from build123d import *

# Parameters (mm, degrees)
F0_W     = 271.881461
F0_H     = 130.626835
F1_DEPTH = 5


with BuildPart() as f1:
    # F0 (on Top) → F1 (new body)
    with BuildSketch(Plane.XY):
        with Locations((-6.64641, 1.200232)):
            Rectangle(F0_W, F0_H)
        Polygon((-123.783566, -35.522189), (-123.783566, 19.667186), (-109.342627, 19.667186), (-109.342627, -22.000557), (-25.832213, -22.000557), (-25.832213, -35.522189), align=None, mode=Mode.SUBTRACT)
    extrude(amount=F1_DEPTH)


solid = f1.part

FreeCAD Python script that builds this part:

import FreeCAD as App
import Part
import Sketcher
from FreeCAD import Vector


def add_polygon(sketch, points):
    """Adds a closed chain of lines whose ends are joined by coincident constraints."""
    first, n = sketch.GeometryCount, len(points)
    for a, b in zip(points, points[1:] + points[:1]):
        sketch.addGeometry(Part.LineSegment(App.Vector(*a, 0), App.Vector(*b, 0)), False)
    for i in range(n):
        sketch.addConstraint(Sketcher.Constraint("Coincident", first + i, 2, first + (i + 1) % n, 1))

doc = App.newDocument("Part")
body = doc.addObject("PartDesign::Body", "Body")

sketch1 = body.newObject("Sketcher::SketchObject", "Sketch")
sketch1.AttachmentSupport = (doc.getObject("XY_Plane"), [""])
sketch1.MapMode = "FlatFace"
add_polygon(sketch1, [(-142.587141, 66.513649), (-142.587141, -64.113186), (129.29432, -64.113186), (129.29432, 66.513649)])
add_polygon(sketch1, [(-25.832213, -35.522189), (-123.783566, -35.522189), (-123.783566, 19.667186), (-109.342627, 19.667186), (-109.342627, -22.000557), (-25.832213, -22.000557)])
sketch1.addConstraint(Sketcher.Constraint("Vertical", 0))
sketch1.addConstraint(Sketcher.Constraint("Horizontal", 1))
sketch1.addConstraint(Sketcher.Constraint("Vertical", 2))
sketch1.addConstraint(Sketcher.Constraint("Horizontal", 3))
sketch1.addConstraint(Sketcher.Constraint("Horizontal", 4))
sketch1.addConstraint(Sketcher.Constraint("Vertical", 5))
sketch1.addConstraint(Sketcher.Constraint("Horizontal", 6))
sketch1.addConstraint(Sketcher.Constraint("Vertical", 7))
sketch1.addConstraint(Sketcher.Constraint("Horizontal", 8))
sketch1.addConstraint(Sketcher.Constraint("Vertical", 9))
sketch1.addConstraint(Sketcher.Constraint("DistanceX", 1, 1, 1, 2, 271.881461))
sketch1.addConstraint(Sketcher.Constraint("DistanceX", 6, 1, 6, 2, 14.440939))
sketch1.addConstraint(Sketcher.Constraint("DistanceY", 9, 2, 9, 1, 13.521632))
sketch1.addConstraint(Sketcher.Constraint("DistanceX", 4, 2, 4, 1, 97.951353))
sketch1.addConstraint(Sketcher.Constraint("DistanceY", 0, 2, 0, 1, 130.626835))
sketch1.addConstraint(Sketcher.Constraint("DistanceY", 5, 1, 5, 2, 55.189375))
sketch1.addConstraint(Sketcher.Constraint("DistanceX", 0, 2, -1, 1, 142.587141))
sketch1.addConstraint(Sketcher.Constraint("DistanceY", -1, 1, 2, 2, 66.513649))
sketch1.addConstraint(Sketcher.Constraint("DistanceY", 4, 2, -1, 1, 35.522189))
sketch1.addConstraint(Sketcher.Constraint("DistanceX", 4, 2, -1, 1, 123.783566))
pad1 = body.newObject("PartDesign::Pad", "Pad")
pad1.Profile = sketch1
pad1.Length = 5

doc.recompute()
